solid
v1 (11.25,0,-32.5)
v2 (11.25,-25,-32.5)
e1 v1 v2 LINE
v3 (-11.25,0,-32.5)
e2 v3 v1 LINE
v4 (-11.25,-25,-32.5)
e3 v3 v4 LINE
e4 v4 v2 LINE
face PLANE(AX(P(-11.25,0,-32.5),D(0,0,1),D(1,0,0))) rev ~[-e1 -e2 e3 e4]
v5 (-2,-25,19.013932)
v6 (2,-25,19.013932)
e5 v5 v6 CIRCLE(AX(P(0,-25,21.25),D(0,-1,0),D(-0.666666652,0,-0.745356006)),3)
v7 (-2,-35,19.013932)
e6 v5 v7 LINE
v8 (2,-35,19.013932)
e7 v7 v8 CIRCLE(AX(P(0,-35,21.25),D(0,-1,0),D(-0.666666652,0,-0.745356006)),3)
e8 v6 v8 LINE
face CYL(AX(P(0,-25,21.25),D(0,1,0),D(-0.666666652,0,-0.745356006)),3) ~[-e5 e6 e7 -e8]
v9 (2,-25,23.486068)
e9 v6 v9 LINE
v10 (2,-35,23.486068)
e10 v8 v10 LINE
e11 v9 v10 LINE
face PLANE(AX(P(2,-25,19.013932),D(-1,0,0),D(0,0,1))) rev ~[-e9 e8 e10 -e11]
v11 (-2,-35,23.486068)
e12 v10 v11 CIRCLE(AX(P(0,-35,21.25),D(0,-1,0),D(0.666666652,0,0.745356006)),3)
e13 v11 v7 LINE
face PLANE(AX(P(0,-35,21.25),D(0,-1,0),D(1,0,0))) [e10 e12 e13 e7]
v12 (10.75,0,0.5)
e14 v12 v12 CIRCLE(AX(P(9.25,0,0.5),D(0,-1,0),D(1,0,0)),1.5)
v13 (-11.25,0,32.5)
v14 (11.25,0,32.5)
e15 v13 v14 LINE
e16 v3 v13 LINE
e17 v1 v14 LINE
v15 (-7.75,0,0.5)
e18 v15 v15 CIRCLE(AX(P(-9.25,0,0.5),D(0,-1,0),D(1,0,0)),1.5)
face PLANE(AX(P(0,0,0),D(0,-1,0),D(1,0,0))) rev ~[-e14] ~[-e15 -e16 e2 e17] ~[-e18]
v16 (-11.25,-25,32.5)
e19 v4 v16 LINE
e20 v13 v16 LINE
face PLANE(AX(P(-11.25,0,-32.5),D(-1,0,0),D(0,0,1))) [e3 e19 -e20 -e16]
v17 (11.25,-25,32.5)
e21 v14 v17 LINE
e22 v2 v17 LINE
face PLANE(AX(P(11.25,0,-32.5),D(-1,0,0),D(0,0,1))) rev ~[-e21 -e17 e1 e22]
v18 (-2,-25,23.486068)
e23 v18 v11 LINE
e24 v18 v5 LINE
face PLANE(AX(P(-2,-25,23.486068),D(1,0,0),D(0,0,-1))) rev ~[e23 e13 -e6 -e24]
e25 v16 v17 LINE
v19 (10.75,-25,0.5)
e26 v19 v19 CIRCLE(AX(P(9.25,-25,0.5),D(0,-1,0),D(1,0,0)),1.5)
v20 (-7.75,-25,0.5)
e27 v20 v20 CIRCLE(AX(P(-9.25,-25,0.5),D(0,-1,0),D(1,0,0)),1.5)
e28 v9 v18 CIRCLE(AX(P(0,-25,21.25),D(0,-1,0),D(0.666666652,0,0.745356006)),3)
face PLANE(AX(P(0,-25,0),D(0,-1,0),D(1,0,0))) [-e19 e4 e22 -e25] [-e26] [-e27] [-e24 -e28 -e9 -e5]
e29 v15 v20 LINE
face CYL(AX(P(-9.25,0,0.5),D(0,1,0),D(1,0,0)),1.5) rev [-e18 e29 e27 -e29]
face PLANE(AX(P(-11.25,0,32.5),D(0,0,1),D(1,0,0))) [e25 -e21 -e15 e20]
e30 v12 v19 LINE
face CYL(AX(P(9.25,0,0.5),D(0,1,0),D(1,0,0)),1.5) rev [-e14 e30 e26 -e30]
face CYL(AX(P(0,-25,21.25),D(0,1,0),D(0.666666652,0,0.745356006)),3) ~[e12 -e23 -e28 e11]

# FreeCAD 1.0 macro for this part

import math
import FreeCAD as App
import Part
import Sketcher

V = App.Vector
Q = App.Units.Quantity

doc = App.newDocument("Part")
body = doc.addObject("PartDesign::Body", "Body")

# Sketch on XZ plane
sketch1 = doc.addObject("Sketcher::SketchObject", "Sketch")
body.addObject(sketch1)
sketch1.AttachmentSupport = (doc.XZ_Plane, [""])
sketch1.MapMode = "FlatFace"
sketch1.addGeometry([
    Part.LineSegment(V(-11.2, 32.5, 0), V(-11.2, -32.5, 0)),  # 0
    Part.LineSegment(V(-11.2, -32.5, 0), V(11.2, -32.5, 0)),  # 1
    Part.LineSegment(V(11.2, -32.5, 0), V(11.2, 32.5, 0)),  # 2
    Part.LineSegment(V(11.2, 32.5, 0), V(-11.2, 32.5, 0)),  # 3
    Part.Circle(V(-9.2, 0.5, 0), V(0, 0, 1), 1.5),  # 4
    Part.Circle(V(9.2, 0.5, 0), V(0, 0, 1), 1.5),  # 5
], False)
sketch1.addConstraint([
    Sketcher.Constraint("Coincident", 0, 2, 1, 1),
    Sketcher.Constraint("Coincident", 1, 2, 2, 1),
    Sketcher.Constraint("Coincident", 2, 2, 3, 1),
    Sketcher.Constraint("Coincident", 3, 2, 0, 1),
    Sketcher.Constraint("Vertical", 0),
    Sketcher.Constraint("Horizontal", 1),
    Sketcher.Constraint("Vertical", 2),
    Sketcher.Constraint("Horizontal", 3),
    Sketcher.Constraint("Equal", 4, 5),
    Sketcher.Constraint("Symmetric", 0, 2, 2, 2, -1, 1),
    Sketcher.Constraint("Symmetric", 4, 3, 5, 3, -2),
    Sketcher.Constraint("Diameter", 4, Q("3 mm")),
    Sketcher.Constraint("DistanceY", 0, 2, 0, 1, Q("65 mm")),
    Sketcher.Constraint("DistanceX", 1, 1, 1, 2, Q("22.5 mm")),
    Sketcher.Constraint("DistanceX", 0, 2, 4, 3, Q("2 mm")),
    Sketcher.Constraint("DistanceY", 0, 2, 4, 3, Q("33 mm")),
])
pad1 = doc.addObject("PartDesign::Pad", "Pad")
body.addObject(pad1)
pad1.Profile = sketch1
pad1.Length = 25

# Sketch on XZ plane
sketch2 = doc.addObject("Sketcher::SketchObject", "Sketch001")
body.addObject(sketch2)
sketch2.AttachmentSupport = (doc.XZ_Plane, [""])
sketch2.MapMode = "FlatFace"
sketch2.AttachmentOffset = App.Placement(V(0, 0, 25), App.Rotation())
sketch2.addGeometry([
    Part.LineSegment(V(-2, 23.5, 0), V(-2, 19, 0)),
    Part.ArcOfCircle(Part.Circle(V(0, 21.3, 0), V(0, 0, 1), 3), math.radians(-132), math.radians(-48)),
    Part.LineSegment(V(2, 19, 0), V(2, 23.5, 0)),
    Part.ArcOfCircle(Part.Circle(V(0, 21.2, 0), V(0, 0, 1), 3), math.radians(48), math.radians(132)),
], False)
sketch2.addConstraint([
    Sketcher.Constraint("Coincident", 0, 2, 1, 1),
    Sketcher.Constraint("Coincident", 1, 2, 2, 1),
    Sketcher.Constraint("Coincident", 2, 2, 3, 1),
    Sketcher.Constraint("Coincident", 3, 2, 0, 1),
    Sketcher.Constraint("Vertical", 0),
    Sketcher.Constraint("Vertical", 2),
    Sketcher.Constraint("Coincident", 3, 3, 1, 3),
    Sketcher.Constraint("Equal", 1, 3),
    Sketcher.Constraint("Symmetric", 0, 2, 1, 2, -2),
    Sketcher.Constraint("Radius", 1, Q("3 mm")),
    Sketcher.Constraint("DistanceX", 0, 2, -1, 1, Q("2 mm")),
    Sketcher.Constraint("DistanceY", -1, 1, 1, 3, Q("21.25 mm")),
])
pad2 = doc.addObject("PartDesign::Pad", "Pad001")
body.addObject(pad2)
pad2.Profile = sketch2
pad2.Length = 10

doc.recompute()
